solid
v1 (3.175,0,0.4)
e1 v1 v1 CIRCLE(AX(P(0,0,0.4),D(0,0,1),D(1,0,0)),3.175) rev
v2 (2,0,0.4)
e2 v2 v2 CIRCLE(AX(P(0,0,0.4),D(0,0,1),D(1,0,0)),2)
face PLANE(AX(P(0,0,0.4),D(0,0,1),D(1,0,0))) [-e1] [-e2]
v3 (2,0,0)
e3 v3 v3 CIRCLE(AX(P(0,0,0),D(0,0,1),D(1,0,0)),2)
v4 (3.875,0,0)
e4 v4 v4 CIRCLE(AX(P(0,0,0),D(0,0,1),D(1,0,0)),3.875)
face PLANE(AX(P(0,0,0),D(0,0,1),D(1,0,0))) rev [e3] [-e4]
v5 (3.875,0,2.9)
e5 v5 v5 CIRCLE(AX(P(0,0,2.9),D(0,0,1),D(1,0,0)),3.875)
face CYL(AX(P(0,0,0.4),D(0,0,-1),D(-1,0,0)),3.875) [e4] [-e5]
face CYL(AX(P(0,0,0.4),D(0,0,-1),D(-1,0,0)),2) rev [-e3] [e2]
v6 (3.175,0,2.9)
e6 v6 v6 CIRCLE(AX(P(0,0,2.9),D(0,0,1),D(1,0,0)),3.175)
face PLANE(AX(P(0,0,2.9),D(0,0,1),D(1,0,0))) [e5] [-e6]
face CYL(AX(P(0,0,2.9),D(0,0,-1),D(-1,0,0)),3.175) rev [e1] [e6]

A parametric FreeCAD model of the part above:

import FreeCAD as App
import Part
import Sketcher
Q = App.Units.Quantity

doc = App.newDocument("Part")
body = doc.addObject("PartDesign::Body", "Body")

# Sketch on XY plane
sketch1 = body.newObject("Sketcher::SketchObject", "Sketch")
sketch1.AttachmentSupport = (doc.getObject("XY_Plane"), [""])
sketch1.MapMode = "FlatFace"
sketch1.addGeometry([
    Part.Circle(App.Vector(0, 0, 0), App.Vector(0, 0, 1), 3.9),
    Part.Circle(App.Vector(0, 0, 0), App.Vector(0, 0, 1), 2),
], False)
sketch1.addConstraint([
    Sketcher.Constraint("Coincident", 0, 3, -1, 1),
    Sketcher.Constraint("Coincident", 1, 3, -1, 1),
    Sketcher.Constraint("Diameter", 1, Q("4 mm")),
    Sketcher.Constraint("Diameter", 0, Q("7.75 mm")),
])
pad1 = body.newObject("PartDesign::Pad", "Pad")
pad1.Profile = sketch1
pad1.Length = 0.4

# Sketch on XY plane
sketch2 = body.newObject("Sketcher::SketchObject", "Sketch001")
sketch2.AttachmentSupport = (doc.getObject("XY_Plane"), [""])
sketch2.MapMode = "FlatFace"
sketch2.AttachmentOffset = App.Placement(App.Vector(0, 0, 0.4), App.Rotation())
sketch2.addGeometry([
    Part.Circle(App.Vector(0, 0, 0), App.Vector(0, 0, 1), 3.9),
    Part.Circle(App.Vector(0, 0, 0), App.Vector(0, 0, 1), 3.2),
], False)
sketch2.addConstraint([
    Sketcher.Constraint("Coincident", 0, 3, -1, 1),
    Sketcher.Constraint("Coincident", 1, 3, -1, 1),
    Sketcher.Constraint("Diameter", 0, Q("7.75 mm")),
    Sketcher.Constraint("Diameter", 1, Q("6.35 mm")),
])
pad2 = body.newObject("PartDesign::Pad", "Pad001")
pad2.Profile = sketch2
pad2.Length = 2.5

doc.recompute()
